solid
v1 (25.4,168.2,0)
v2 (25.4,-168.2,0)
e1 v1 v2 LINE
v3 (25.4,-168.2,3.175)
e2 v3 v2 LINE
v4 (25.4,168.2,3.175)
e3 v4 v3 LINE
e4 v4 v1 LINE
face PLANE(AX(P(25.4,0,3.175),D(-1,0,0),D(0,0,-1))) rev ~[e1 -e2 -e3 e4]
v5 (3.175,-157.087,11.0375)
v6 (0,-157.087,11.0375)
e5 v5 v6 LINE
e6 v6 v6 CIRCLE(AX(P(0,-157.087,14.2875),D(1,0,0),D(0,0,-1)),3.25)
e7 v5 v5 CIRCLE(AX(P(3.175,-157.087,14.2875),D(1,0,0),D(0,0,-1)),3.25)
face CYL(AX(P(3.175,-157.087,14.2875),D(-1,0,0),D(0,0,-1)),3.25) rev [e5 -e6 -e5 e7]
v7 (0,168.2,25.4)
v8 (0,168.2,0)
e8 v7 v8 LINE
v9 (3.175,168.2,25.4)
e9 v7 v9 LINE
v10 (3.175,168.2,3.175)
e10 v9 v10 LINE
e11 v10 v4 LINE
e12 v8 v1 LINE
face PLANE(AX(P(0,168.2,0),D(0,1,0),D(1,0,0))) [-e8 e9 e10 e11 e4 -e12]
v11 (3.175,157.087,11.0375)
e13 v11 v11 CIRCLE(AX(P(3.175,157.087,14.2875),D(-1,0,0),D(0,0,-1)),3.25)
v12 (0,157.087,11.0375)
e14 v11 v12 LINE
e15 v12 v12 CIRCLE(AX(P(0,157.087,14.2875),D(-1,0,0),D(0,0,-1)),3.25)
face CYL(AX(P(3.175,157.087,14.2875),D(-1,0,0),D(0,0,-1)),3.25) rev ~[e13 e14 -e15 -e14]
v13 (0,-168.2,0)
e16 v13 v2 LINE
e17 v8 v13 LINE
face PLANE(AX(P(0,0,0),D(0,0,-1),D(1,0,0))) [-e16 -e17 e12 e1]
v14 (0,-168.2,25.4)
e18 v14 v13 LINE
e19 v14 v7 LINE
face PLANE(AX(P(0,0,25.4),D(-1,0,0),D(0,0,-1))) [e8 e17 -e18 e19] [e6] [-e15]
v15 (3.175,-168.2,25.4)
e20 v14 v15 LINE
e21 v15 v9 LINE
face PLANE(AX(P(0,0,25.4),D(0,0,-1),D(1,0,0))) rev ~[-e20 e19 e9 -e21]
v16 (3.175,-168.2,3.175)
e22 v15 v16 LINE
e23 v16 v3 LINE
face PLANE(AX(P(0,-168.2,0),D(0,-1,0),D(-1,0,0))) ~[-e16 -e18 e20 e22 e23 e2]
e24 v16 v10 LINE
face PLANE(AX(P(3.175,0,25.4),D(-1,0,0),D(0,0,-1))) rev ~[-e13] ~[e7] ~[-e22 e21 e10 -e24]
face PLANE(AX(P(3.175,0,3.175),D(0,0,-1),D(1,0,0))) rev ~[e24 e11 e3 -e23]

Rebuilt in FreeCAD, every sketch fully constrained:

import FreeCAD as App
import Part
import Sketcher
from FreeCAD import Vector
Q = App.Units.Quantity


def add_polygon(sketch, points):
    """Adds a closed chain of lines whose ends are joined by coincident constraints."""
    first, n = sketch.GeometryCount, len(points)
    for a, b in zip(points, points[1:] + points[:1]):
        sketch.addGeometry(Part.LineSegment(App.Vector(*a, 0), App.Vector(*b, 0)), False)
    for i in range(n):
        sketch.addConstraint(Sketcher.Constraint("Coincident", first + i, 2, first + (i + 1) % n, 1))

doc = App.newDocument("Part")
body = doc.addObject("PartDesign::Body", "Body")

# Sketch on XZ plane
sketch1 = body.newObject("Sketcher::SketchObject", "Sketch")
sketch1.AttachmentSupport = (doc.getObject("XZ_Plane"), [""])
sketch1.MapMode = "FlatFace"
add_polygon(sketch1, [(0, 0), (0, 25.4), (3.2, 25.4), (3.2, 3.2), (25.4, 3.2), (25.4, 0)])  # lines 0-5
sketch1.addConstraint(Sketcher.Constraint("Vertical", 0))
sketch1.addConstraint(Sketcher.Constraint("Horizontal", 1))
sketch1.addConstraint(Sketcher.Constraint("Vertical", 2))
sketch1.addConstraint(Sketcher.Constraint("Horizontal", 3))
sketch1.addConstraint(Sketcher.Constraint("Vertical", 4))
sketch1.addConstraint(Sketcher.Constraint("Horizontal", 5))
sketch1.addConstraint(Sketcher.Constraint("Coincident", 5, 2, -1, 1))
sketch1.addConstraint(Sketcher.Constraint("Equal", 5, 0))
sketch1.addConstraint(Sketcher.Constraint("Equal", 3, 2))
sketch1.addConstraint(Sketcher.Constraint("DistanceX", 5, 2, 5, 1, Q("1 in")))
sketch1.addConstraint(Sketcher.Constraint("DistanceX", 1, 1, 1, 2, Q("0.125 in")))
pad1 = body.newObject("PartDesign::Pad", "Pad")
pad1.Profile = sketch1
pad1.Length = 168.2
pad1.Reversed = True

# Sketch on YZ plane
sketch2 = body.newObject("Sketcher::SketchObject", "Sketch001")
sketch2.AttachmentSupport = (doc.getObject("YZ_Plane"), [""])
sketch2.MapMode = "FlatFace"
sketch2.AttachmentOffset = App.Placement(Vector(0, 0, 0.125 * 25.4), App.Rotation())
sketch2.addGeometry(Part.Circle(Vector(157.1, 14.3, 0), Vector(0, 0, 1), 3.2), False)
sketch2.addConstraint(Sketcher.Constraint("Diameter", 0, Q("0.2559 in")))
sketch2.addConstraint(Sketcher.Constraint("DistanceY", -1, 1, 0, 3, Q("0.5625 in")))
sketch2.addConstraint(Sketcher.Constraint("DistanceX", -1, 1, 0, 3, 157.087))
doc.recompute()
hole = body.newObject("PartDesign::Hole", "Hole")
hole.Profile = sketch2
hole.ThreadType = "None"
hole.Diameter = Q("0.2559055 in")
hole.DepthType = "ThroughAll"
doc.recompute()

mirrored = body.newObject("PartDesign::Mirrored", "Mirrored")
mirrored.TransformMode = "Transform body"
mirrored.MirrorPlane = (doc.getObject("XZ_Plane"), [""])
body.Tip = mirrored

doc.recompute()
